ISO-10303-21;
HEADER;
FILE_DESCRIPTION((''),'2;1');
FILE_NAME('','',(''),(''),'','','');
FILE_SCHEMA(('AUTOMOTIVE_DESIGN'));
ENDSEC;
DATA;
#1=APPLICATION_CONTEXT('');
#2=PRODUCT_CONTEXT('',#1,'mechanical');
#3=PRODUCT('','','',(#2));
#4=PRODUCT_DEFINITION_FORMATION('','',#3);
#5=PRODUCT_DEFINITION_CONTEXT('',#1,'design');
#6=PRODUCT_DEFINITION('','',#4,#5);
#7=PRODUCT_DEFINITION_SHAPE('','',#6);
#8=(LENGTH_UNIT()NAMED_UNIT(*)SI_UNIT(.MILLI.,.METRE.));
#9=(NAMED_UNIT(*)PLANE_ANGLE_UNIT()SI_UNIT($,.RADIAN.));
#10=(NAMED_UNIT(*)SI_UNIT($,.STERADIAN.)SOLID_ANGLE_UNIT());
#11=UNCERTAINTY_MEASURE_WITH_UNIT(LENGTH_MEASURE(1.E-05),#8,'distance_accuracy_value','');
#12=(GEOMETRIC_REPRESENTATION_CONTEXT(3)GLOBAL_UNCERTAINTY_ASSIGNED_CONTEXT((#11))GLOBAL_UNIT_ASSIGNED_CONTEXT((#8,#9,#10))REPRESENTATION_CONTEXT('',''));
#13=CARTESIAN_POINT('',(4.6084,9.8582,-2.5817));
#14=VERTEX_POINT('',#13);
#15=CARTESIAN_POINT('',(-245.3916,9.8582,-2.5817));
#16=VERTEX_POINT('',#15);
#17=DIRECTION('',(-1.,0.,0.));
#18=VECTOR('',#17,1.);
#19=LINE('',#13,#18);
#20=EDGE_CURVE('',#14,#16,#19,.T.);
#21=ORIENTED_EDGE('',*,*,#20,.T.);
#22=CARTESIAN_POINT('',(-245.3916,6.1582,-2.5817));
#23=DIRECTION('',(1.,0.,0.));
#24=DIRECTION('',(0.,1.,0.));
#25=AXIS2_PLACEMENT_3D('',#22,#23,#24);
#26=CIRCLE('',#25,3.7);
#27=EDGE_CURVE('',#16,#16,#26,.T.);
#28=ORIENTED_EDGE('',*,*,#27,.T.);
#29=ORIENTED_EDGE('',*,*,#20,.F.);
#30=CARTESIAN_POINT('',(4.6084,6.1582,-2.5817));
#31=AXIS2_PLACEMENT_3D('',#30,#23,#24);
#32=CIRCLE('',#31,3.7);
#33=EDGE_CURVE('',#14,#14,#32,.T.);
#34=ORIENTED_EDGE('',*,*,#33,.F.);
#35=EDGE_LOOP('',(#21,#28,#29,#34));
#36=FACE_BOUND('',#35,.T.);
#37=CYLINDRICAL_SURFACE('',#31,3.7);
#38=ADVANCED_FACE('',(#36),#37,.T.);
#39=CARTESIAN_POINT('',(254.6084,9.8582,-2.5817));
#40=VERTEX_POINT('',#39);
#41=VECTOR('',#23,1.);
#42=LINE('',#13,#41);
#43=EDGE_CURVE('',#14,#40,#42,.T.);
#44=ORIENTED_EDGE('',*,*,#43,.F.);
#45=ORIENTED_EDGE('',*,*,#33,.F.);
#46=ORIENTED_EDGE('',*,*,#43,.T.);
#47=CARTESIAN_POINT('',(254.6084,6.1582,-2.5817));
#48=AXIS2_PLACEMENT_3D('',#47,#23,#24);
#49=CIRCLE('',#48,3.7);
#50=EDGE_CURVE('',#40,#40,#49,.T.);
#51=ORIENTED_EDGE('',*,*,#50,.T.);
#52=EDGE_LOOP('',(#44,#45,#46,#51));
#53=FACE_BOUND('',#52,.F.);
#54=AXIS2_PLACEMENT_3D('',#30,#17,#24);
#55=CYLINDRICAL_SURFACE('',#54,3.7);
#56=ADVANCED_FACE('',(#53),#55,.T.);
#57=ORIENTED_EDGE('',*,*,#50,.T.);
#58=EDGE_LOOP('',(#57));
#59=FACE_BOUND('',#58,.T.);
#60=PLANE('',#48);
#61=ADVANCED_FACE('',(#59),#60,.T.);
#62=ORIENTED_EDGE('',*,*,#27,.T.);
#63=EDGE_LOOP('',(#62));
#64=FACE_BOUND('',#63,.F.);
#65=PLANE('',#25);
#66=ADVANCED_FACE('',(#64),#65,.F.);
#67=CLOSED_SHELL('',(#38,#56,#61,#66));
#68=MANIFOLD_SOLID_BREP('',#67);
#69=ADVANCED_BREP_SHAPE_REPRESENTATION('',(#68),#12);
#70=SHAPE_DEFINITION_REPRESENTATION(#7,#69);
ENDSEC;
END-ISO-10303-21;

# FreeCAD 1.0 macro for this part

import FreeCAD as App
import Part
import Sketcher
from FreeCAD import Vector
Q = App.Units.Quantity

doc = App.newDocument("Part")
params = doc.addObject("Spreadsheet::Sheet", "Params")
for row, (alias, value) in enumerate([
    ("sketch1_diameter", "7.4 mm"),
    ("pad1_length", "500 mm"),
], start=1):
    params.set(f"A{row}", alias)
    params.set(f"B{row}", "=" + value)
    params.setAlias(f"B{row}", alias)

body = doc.addObject("PartDesign::Body", "Body")

# Sketch on YZ plane
sketch1 = doc.addObject("Sketcher::SketchObject", "Sketch")
body.addObject(sketch1)
sketch1.AttachmentSupport = (doc.YZ_Plane, [""])
sketch1.MapMode = "FlatFace"
sketch1.AttachmentOffset = App.Placement(Vector(0, 0, 4.6084), App.Rotation())
sketch1.addGeometry(Part.Circle(Vector(6.2, -2.6, 0), Vector(0, 0, 1), 3.7), False)
sketch1.addConstraint([
    Sketcher.Constraint("Diameter", 0, Q("7.4 mm")),
    Sketcher.Constraint("DistanceX", -1, 1, 0, 3, Q("6.1582 mm")),
    Sketcher.Constraint("DistanceY", 0, 3, -1, 1, Q("2.5817 mm")),
])
sketch1.setExpression("Constraints[0]", "Params.sketch1_diameter")
pad1 = doc.addObject("PartDesign::Pad", "Pad")
body.addObject(pad1)
pad1.Profile = sketch1
pad1.setExpression("Length", "Params.pad1_length")
pad1.Midplane = True

doc.recompute()
